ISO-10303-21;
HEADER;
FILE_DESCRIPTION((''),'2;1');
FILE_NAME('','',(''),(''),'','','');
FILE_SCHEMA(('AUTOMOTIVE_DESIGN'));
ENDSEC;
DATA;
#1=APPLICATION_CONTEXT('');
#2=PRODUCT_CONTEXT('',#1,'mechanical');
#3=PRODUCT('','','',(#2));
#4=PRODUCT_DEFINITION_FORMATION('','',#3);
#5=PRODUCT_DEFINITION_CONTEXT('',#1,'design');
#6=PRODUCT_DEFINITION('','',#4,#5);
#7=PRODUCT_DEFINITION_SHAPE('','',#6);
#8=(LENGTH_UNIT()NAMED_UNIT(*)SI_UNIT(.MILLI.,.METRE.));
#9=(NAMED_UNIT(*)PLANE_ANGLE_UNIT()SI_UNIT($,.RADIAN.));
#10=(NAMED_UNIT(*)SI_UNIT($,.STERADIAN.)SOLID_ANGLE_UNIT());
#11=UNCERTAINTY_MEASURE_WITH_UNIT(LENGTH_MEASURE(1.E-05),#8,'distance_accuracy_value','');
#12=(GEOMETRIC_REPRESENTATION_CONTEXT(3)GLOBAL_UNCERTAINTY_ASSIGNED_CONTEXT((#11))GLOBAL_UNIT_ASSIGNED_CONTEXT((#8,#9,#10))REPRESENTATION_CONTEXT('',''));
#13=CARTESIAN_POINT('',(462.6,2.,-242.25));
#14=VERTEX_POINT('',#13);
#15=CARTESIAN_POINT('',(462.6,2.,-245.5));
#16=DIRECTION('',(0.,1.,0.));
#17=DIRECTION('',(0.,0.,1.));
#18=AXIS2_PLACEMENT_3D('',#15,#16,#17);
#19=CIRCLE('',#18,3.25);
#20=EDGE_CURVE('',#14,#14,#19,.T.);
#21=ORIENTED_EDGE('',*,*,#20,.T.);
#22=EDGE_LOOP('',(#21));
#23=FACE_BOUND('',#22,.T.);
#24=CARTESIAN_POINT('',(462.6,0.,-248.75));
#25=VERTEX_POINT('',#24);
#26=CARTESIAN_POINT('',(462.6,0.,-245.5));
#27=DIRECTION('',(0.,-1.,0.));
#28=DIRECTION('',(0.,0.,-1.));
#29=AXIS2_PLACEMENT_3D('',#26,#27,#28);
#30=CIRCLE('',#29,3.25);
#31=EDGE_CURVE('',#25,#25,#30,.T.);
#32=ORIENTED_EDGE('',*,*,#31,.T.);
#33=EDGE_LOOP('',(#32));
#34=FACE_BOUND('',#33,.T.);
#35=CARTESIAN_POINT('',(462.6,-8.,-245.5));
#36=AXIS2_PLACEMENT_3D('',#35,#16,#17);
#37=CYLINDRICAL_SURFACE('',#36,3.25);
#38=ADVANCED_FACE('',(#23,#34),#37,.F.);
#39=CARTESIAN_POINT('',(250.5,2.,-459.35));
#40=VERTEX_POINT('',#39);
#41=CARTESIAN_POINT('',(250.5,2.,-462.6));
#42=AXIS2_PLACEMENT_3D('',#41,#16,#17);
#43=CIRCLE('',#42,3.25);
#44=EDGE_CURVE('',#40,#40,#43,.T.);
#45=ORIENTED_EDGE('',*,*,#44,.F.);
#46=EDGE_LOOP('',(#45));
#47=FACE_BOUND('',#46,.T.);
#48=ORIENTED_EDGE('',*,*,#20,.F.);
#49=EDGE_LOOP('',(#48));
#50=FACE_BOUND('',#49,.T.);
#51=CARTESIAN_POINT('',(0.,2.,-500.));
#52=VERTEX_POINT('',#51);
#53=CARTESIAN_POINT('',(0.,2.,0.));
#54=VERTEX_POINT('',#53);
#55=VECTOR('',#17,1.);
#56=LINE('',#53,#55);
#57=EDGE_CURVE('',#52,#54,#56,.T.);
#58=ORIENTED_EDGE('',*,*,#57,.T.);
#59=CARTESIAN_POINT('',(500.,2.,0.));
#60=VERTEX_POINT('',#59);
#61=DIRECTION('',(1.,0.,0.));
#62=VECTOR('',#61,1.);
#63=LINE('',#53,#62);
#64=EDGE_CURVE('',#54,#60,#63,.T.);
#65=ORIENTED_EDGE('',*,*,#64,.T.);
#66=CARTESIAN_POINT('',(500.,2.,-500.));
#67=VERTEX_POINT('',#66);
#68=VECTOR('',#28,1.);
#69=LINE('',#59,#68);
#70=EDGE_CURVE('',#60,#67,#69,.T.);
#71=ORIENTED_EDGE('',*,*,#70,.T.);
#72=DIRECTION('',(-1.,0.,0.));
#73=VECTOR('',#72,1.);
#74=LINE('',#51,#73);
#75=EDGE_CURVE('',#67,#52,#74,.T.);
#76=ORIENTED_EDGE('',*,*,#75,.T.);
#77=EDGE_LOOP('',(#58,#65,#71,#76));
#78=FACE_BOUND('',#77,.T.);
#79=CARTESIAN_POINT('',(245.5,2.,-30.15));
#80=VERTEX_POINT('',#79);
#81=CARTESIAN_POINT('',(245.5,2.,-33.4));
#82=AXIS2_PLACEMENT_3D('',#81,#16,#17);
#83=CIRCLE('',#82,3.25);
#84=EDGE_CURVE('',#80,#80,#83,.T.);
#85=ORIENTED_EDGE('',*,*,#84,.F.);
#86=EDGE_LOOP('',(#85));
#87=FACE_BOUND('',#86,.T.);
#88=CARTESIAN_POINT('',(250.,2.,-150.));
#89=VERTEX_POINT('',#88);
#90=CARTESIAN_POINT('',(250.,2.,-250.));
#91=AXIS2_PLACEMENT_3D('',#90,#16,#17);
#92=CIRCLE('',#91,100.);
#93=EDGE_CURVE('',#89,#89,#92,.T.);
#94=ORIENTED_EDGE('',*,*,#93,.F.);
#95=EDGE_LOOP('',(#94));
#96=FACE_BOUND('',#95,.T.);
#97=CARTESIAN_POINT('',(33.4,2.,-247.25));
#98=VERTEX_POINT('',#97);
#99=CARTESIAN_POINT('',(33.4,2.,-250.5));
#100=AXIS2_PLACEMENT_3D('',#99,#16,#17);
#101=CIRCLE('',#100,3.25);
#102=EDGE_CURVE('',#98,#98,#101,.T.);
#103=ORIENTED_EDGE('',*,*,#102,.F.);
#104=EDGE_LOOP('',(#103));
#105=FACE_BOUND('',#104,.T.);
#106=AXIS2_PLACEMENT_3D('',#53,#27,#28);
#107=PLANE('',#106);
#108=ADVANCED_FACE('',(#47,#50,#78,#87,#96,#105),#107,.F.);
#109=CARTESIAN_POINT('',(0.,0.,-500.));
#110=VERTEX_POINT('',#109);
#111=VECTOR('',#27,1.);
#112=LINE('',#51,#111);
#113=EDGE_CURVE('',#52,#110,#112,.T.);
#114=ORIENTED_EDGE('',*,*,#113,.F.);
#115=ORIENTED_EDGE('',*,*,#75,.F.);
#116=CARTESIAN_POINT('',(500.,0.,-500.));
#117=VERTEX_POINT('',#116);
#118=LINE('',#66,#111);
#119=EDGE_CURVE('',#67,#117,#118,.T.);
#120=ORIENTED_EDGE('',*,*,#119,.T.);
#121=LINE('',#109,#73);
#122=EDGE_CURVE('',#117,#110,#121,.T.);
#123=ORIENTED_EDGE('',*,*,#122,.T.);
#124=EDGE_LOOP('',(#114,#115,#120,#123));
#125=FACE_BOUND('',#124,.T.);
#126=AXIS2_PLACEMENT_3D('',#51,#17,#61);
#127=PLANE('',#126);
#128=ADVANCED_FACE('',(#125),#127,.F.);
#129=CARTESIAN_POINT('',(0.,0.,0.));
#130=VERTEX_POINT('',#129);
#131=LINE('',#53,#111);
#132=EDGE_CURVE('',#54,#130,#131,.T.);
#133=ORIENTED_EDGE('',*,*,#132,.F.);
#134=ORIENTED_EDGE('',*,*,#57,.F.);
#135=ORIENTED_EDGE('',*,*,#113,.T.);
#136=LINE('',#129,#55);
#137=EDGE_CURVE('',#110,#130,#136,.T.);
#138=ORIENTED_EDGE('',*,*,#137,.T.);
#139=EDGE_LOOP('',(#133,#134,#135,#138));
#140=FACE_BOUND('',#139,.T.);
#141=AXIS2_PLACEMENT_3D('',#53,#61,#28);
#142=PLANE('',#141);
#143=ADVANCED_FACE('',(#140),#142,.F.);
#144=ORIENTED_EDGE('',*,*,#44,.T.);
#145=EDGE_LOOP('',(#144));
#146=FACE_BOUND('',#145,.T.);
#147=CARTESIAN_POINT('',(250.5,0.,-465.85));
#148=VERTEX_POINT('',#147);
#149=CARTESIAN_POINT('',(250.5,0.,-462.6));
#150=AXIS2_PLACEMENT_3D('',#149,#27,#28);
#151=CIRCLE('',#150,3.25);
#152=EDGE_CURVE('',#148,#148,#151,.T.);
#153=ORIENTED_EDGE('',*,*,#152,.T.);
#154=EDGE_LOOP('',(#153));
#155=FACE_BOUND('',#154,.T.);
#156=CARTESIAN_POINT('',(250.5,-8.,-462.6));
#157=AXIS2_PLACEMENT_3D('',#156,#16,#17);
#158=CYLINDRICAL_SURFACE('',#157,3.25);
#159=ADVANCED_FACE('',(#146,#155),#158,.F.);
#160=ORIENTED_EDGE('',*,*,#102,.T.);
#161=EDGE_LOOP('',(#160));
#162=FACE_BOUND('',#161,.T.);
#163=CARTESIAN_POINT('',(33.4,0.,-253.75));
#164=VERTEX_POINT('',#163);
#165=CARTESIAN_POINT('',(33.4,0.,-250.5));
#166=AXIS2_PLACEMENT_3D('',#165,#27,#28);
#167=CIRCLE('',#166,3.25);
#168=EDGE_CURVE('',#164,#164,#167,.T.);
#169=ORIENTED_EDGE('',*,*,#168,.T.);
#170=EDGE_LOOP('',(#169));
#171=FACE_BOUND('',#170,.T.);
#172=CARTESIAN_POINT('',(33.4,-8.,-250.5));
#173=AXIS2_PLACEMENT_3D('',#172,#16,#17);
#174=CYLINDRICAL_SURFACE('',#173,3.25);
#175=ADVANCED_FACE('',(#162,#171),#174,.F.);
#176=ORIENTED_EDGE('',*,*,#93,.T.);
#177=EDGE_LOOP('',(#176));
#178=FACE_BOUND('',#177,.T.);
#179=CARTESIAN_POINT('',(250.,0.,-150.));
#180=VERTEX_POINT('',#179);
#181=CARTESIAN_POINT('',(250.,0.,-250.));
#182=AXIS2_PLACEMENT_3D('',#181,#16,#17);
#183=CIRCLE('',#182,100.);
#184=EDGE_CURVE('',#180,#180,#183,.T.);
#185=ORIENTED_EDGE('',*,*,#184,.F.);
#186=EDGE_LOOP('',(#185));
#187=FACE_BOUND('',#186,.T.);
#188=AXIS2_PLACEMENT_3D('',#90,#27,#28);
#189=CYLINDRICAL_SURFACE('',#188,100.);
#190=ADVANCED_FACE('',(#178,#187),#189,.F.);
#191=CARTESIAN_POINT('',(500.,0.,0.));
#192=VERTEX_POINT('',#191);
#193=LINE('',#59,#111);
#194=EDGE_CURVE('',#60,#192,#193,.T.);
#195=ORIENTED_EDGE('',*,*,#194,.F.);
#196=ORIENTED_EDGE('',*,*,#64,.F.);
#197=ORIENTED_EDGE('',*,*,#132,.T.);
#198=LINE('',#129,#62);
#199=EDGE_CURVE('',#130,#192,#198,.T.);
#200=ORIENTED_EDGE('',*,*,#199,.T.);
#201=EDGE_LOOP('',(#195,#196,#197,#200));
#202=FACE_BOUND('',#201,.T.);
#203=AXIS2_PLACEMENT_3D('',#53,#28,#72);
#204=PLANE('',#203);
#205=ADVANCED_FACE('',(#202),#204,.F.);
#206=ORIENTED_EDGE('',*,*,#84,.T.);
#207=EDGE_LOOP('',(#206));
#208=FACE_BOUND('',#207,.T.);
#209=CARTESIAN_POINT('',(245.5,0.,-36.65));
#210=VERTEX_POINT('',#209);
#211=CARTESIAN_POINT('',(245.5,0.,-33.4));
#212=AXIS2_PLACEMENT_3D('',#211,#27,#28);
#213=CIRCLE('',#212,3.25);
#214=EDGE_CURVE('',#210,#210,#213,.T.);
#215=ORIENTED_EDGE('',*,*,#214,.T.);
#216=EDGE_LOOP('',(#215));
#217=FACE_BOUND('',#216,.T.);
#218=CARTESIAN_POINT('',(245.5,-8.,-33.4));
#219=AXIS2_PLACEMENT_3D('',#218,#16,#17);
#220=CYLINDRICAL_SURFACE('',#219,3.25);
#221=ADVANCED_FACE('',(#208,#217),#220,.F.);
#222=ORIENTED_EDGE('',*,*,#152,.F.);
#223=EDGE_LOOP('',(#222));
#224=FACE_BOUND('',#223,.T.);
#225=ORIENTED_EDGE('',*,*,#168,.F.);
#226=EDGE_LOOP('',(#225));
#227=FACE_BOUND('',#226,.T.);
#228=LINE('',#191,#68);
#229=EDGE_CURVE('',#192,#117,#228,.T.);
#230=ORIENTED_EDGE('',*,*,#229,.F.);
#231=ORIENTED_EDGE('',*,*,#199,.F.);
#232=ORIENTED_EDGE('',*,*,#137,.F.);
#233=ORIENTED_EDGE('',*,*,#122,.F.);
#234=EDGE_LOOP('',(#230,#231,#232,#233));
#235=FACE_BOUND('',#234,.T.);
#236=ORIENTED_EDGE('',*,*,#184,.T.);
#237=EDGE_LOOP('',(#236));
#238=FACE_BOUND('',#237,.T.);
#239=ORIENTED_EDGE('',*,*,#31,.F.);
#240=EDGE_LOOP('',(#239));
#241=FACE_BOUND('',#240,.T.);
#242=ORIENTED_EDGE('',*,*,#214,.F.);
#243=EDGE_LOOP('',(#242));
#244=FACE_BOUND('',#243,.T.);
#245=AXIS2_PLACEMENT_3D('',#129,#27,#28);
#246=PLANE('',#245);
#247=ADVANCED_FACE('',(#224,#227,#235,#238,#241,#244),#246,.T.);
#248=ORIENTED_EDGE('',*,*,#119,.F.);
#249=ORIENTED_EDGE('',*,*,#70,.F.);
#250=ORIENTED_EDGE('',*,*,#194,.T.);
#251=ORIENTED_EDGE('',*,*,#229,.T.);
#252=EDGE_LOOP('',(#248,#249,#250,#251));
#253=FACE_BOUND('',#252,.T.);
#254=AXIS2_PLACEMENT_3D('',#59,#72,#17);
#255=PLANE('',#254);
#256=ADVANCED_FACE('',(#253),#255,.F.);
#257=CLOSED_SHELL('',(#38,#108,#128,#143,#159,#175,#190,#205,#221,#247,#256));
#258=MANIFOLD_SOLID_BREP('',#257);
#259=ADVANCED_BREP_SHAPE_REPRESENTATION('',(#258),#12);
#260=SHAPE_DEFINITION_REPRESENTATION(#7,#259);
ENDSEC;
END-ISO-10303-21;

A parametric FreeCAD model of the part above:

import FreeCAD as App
import Part
import Sketcher

V = App.Vector


def add_polygon(sketch, points):
    """Adds a closed chain of lines whose ends are joined by coincident constraints."""
    first, n = sketch.GeometryCount, len(points)
    for a, b in zip(points, points[1:] + points[:1]):
        sketch.addGeometry(Part.LineSegment(App.Vector(*a, 0), App.Vector(*b, 0)), False)
    for i in range(n):
        sketch.addConstraint(Sketcher.Constraint("Coincident", first + i, 2, first + (i + 1) % n, 1))

doc = App.newDocument("Part")
body = doc.addObject("PartDesign::Body", "Body")

# Sketch on XZ plane
sketch1 = body.newObject("Sketcher::SketchObject", "Sketch")
sketch1.AttachmentSupport = (doc.getObject("XZ_Plane"), [""])
sketch1.MapMode = "FlatFace"
add_polygon(sketch1, [(0, -500), (0, 0), (500, 0), (500, -500)])  # lines 0-3
sketch1.addGeometry(Part.Circle(V(250, -250, 0), V(0, 0, 1), 100), False)  # 4
sketch1.addConstraint([
    Sketcher.Constraint("Vertical", 0),
    Sketcher.Constraint("Horizontal", 1),
    Sketcher.Constraint("Vertical", 2),
    Sketcher.Constraint("Horizontal", 3),
    Sketcher.Constraint("Coincident", 0, 2, -1, 1),
    Sketcher.Constraint("Equal", 3, 0),
    Sketcher.Constraint("Diameter", 4, 200.0),
    Sketcher.Constraint("DistanceX", 1, 1, 1, 2, 500.0),
    Sketcher.Constraint("DistanceX", -1, 1, 4, 3, 250.0),
    Sketcher.Constraint("DistanceY", 4, 3, -1, 1, 250.0),
])
pad1 = body.newObject("PartDesign::Pad", "Pad")
pad1.Profile = sketch1
pad1.Length = 2
pad1.Reversed = True

# Sketch on XZ plane
sketch2 = body.newObject("Sketcher::SketchObject", "Sketch001")
sketch2.AttachmentSupport = (doc.getObject("XZ_Plane"), [""])
sketch2.MapMode = "FlatFace"
sketch2.AttachmentOffset = App.Placement(V(0, 0, -2), App.Rotation())
sketch2.addGeometry([
    Part.Circle(V(245.5, -33.4, 0), V(0, 0, 1), 3.2),
    Part.Circle(V(33.4, -250.5, 0), V(0, 0, 1), 3.2),
    Part.Circle(V(462.6, -245.5, 0), V(0, 0, 1), 3.2),
    Part.Circle(V(250.5, -462.6, 0), V(0, 0, 1), 3.2),
], False)
sketch2.addConstraint([
    Sketcher.Constraint("Equal", 0, 1),
    Sketcher.Constraint("Equal", 1, 2),
    Sketcher.Constraint("Equal", 2, 3),
    Sketcher.Constraint("Diameter", 0, 6.5),
    Sketcher.Constraint("DistanceY", 1, 3, 2, 3, 5.0),
    Sketcher.Constraint("DistanceX", 0, 3, 3, 3, 5.0),
    Sketcher.Constraint("DistanceX", -1, 1, 0, 3, 245.5),
    Sketcher.Constraint("DistanceY", 0, 3, -1, 1, 33.4),
    Sketcher.Constraint("DistanceX", -1, 1, 1, 3, 33.4),
    Sketcher.Constraint("DistanceY", 1, 3, -1, 1, 250.5),
    Sketcher.Constraint("DistanceX", -1, 1, 2, 3, 462.6),
    Sketcher.Constraint("DistanceY", 3, 3, -1, 1, 462.6),
])
pocket1 = body.newObject("PartDesign::Pocket", "Pocket")
pocket1.Profile = sketch2
pocket1.Length = 10
pocket1.Reversed = True

doc.recompute()
